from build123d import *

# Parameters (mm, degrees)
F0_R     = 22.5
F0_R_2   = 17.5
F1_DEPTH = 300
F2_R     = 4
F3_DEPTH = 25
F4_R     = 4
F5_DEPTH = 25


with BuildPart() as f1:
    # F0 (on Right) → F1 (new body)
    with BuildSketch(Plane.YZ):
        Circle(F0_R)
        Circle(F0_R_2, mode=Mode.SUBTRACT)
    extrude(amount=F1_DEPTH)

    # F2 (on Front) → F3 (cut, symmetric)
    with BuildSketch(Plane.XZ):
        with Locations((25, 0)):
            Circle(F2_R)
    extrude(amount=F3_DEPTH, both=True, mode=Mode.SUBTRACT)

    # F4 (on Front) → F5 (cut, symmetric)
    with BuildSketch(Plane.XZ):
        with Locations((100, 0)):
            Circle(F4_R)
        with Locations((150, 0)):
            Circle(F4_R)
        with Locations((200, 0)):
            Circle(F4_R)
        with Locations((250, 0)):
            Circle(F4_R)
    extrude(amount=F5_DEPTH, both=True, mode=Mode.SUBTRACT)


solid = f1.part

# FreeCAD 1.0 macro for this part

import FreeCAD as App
import Part
import Sketcher

doc = App.newDocument("Part")
body = doc.addObject("PartDesign::Body", "Body")

sketch1 = body.newObject("Sketcher::SketchObject", "Sketch")
sketch1.AttachmentSupport = (doc.getObject("YZ_Plane"), [""])
sketch1.MapMode = "FlatFace"
sketch1.addGeometry([
    Part.Circle(App.Vector(0, 0, 0), App.Vector(0, 0, 1), 22),
    Part.Circle(App.Vector(0, 0, 0), App.Vector(0, 0, 1), 18),
], False)
sketch1.addConstraint([
    Sketcher.Constraint("Coincident", 0, 3, -1, 1),
    Sketcher.Constraint("Coincident", 1, 3, -1, 1),
    Sketcher.Constraint("Diameter", 0, 45.0),
    Sketcher.Constraint("Diameter", 1, 35.0),
])
pad1 = body.newObject("PartDesign::Pad", "Pad")
pad1.Profile = sketch1
pad1.Length = 300

sketch2 = body.newObject("Sketcher::SketchObject", "Sketch001")
sketch2.AttachmentSupport = (doc.getObject("XZ_Plane"), [""])
sketch2.MapMode = "FlatFace"
sketch2.addGeometry(Part.Circle(App.Vector(25, 0, 0), App.Vector(0, 0, 1), 4), False)
sketch2.addConstraint([
    Sketcher.Constraint("PointOnObject", 0, 3, -1),
    Sketcher.Constraint("Diameter", 0, 8.0),
    Sketcher.Constraint("DistanceX", -1, 1, 0, 3, 25.0),
])
pocket1 = body.newObject("PartDesign::Pocket", "Pocket")
pocket1.Profile = sketch2
pocket1.Length = 50
pocket1.Midplane = True

sketch3 = body.newObject("Sketcher::SketchObject", "Sketch002")
sketch3.AttachmentSupport = (doc.getObject("XZ_Plane"), [""])
sketch3.MapMode = "FlatFace"
sketch3.addGeometry([
    Part.Circle(App.Vector(100, 0, 0), App.Vector(0, 0, 1), 4),
    Part.Circle(App.Vector(150, 0, 0), App.Vector(0, 0, 1), 4),
    Part.Circle(App.Vector(200, 0, 0), App.Vector(0, 0, 1), 4),
    Part.Circle(App.Vector(250, 0, 0), App.Vector(0, 0, 1), 4),
], False)
sketch3.addConstraint([
    Sketcher.Constraint("Equal", 0, 1),
    Sketcher.Constraint("Equal", 1, 2),
    Sketcher.Constraint("Equal", 2, 3),
    Sketcher.Constraint("PointOnObject", 0, 3, -1),
    Sketcher.Constraint("PointOnObject", 1, 3, -1),
    Sketcher.Constraint("PointOnObject", 2, 3, -1),
    Sketcher.Constraint("PointOnObject", 3, 3, -1),
    Sketcher.Constraint("Diameter", 0, 8.0),
    Sketcher.Constraint("DistanceX", -1, 1, 0, 3, 100.0),
    Sketcher.Constraint("DistanceX", -1, 1, 1, 3, 150.0),
    Sketcher.Constraint("DistanceX", -1, 1, 2, 3, 200.0),
    Sketcher.Constraint("DistanceX", -1, 1, 3, 3, 250.0),
])
pocket2 = body.newObject("PartDesign::Pocket", "Pocket001")
pocket2.Profile = sketch3
pocket2.Length = 50
pocket2.Midplane = True

doc.recompute()
